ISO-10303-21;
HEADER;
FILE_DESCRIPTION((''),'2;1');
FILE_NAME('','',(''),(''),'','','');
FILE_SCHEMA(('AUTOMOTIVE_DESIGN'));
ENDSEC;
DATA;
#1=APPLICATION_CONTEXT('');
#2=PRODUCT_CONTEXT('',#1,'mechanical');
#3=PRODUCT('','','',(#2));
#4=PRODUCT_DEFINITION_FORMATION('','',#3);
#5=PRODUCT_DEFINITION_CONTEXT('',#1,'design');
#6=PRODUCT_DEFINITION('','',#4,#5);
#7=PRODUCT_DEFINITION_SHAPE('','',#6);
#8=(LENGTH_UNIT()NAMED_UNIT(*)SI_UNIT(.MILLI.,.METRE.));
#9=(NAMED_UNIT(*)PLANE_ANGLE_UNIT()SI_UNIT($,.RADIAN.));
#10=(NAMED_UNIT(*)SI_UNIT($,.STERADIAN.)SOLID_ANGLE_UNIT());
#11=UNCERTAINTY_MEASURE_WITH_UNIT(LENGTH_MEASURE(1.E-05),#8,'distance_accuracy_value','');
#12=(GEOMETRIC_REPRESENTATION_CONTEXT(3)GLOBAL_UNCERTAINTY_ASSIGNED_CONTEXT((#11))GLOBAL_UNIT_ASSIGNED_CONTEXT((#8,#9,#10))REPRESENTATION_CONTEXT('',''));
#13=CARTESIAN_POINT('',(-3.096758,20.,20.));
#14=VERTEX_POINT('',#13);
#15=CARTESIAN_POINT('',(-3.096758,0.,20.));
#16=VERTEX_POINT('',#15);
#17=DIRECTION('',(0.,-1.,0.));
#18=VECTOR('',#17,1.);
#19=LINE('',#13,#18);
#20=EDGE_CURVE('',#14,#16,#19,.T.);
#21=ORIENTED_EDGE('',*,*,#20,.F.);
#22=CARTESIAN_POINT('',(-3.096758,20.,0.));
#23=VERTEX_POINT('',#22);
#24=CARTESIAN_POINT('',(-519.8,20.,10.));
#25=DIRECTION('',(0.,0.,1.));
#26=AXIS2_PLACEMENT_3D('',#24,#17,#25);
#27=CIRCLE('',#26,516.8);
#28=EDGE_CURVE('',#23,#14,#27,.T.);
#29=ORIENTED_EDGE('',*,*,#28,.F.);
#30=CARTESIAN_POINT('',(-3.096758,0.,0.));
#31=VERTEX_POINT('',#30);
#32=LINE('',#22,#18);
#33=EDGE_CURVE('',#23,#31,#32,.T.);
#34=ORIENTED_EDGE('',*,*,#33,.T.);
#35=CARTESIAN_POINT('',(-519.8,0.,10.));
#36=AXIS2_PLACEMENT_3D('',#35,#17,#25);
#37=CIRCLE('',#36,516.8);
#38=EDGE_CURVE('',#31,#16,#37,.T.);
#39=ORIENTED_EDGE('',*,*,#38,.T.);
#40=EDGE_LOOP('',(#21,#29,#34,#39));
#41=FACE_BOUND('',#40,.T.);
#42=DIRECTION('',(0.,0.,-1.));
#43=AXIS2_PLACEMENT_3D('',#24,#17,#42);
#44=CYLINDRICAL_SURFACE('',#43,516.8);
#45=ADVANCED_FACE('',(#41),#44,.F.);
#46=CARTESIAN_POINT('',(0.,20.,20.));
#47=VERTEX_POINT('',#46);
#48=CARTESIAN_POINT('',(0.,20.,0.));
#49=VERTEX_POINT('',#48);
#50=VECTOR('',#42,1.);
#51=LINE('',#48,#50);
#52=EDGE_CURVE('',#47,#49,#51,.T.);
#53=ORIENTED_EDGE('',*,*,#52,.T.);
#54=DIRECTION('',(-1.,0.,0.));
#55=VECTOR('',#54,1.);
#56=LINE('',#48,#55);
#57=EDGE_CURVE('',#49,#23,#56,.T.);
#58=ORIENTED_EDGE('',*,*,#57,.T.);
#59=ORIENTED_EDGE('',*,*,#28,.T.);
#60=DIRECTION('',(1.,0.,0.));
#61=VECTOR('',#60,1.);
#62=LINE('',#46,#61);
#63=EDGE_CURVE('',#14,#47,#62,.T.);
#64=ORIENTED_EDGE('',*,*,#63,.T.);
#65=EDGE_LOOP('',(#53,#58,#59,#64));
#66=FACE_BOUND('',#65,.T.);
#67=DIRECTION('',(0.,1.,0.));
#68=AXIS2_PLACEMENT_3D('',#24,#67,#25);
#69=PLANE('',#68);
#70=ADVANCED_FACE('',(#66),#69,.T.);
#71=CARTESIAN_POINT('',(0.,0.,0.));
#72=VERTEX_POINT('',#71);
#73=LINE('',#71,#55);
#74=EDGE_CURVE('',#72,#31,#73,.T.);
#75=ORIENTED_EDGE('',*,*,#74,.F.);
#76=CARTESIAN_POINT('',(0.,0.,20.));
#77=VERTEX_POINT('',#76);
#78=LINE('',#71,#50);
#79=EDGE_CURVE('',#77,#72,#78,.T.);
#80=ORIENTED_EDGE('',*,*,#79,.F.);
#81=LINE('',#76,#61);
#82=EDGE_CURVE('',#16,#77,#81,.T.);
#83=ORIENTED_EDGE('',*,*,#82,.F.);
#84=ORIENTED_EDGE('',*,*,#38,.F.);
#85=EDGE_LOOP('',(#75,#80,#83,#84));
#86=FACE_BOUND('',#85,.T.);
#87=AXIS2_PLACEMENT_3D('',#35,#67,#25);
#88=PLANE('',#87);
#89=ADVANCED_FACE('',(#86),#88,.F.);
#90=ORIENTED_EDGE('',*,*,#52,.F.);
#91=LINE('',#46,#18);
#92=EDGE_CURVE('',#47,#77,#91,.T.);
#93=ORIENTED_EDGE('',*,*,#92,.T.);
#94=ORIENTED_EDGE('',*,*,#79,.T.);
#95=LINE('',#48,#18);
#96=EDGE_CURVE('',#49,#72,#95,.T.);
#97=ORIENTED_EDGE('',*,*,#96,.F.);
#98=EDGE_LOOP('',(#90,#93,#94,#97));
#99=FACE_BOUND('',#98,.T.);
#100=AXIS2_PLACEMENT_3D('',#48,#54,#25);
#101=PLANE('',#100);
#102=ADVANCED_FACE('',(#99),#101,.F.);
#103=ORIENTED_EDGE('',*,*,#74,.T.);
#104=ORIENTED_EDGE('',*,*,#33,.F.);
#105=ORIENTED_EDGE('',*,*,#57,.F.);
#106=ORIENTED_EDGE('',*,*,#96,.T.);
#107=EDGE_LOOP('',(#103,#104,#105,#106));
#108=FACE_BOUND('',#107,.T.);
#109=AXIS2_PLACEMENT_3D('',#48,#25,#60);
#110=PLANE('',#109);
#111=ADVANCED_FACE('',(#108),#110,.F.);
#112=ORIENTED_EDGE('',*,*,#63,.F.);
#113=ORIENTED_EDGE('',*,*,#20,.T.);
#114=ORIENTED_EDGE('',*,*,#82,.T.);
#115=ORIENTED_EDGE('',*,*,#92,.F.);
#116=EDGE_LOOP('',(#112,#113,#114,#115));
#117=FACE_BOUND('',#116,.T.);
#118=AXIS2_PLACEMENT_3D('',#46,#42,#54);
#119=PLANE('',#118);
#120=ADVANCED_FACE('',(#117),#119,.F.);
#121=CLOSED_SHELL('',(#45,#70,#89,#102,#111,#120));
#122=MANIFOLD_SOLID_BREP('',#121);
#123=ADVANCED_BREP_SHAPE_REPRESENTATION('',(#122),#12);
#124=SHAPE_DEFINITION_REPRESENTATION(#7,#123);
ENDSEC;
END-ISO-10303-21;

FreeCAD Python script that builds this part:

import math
import FreeCAD as App
import Part
import Sketcher
from FreeCAD import Vector

doc = App.newDocument("Part")
params = doc.addObject("Spreadsheet::Sheet", "Params")
for row, (alias, value) in enumerate([
    ("sketch1_radius", "516.799999 mm"),
    ("sketch1_height", "20 mm"),
    ("pad1_length", "20 mm"),
], start=1):
    params.set(f"A{row}", alias)
    params.set(f"B{row}", "=" + value)
    params.setAlias(f"B{row}", alias)

body = doc.addObject("PartDesign::Body", "Body")

sketch1 = body.newObject("Sketcher::SketchObject", "Sketch")
sketch1.AttachmentSupport = (doc.getObject("XZ_Plane"), [""])
sketch1.MapMode = "FlatFace"
sketch1.addGeometry(Part.LineSegment(Vector(0, 20, 0), Vector(0, 0, 0)), False)
sketch1.addGeometry(Part.LineSegment(Vector(0, 0, 0), Vector(-3.1, 0, 0)), False)
sketch1.addGeometry(Part.ArcOfCircle(Part.Circle(Vector(-519.8, 10, 0), Vector(0, 0, 1), 516.8), math.radians(-1.11), math.radians(1.11)), False)
sketch1.addGeometry(Part.LineSegment(Vector(-3.1, 20, 0), Vector(0, 20, 0)), False)
sketch1.addConstraint(Sketcher.Constraint("Coincident", 0, 2, 1, 1))
sketch1.addConstraint(Sketcher.Constraint("Coincident", 1, 2, 2, 1))
sketch1.addConstraint(Sketcher.Constraint("Coincident", 2, 2, 3, 1))
sketch1.addConstraint(Sketcher.Constraint("Coincident", 3, 2, 0, 1))
sketch1.addConstraint(Sketcher.Constraint("Vertical", 0))
sketch1.addConstraint(Sketcher.Constraint("Horizontal", 1))
sketch1.addConstraint(Sketcher.Constraint("Horizontal", 3))
sketch1.addConstraint(Sketcher.Constraint("Coincident", 0, 2, -1, 1))
sketch1.addConstraint(Sketcher.Constraint("Vertical", 1, 2, 2, 2))
sketch1.addConstraint(Sketcher.Constraint("Radius", 2, 516.799999))
sketch1.addConstraint(Sketcher.Constraint("DistanceY", 0, 2, 0, 1, 20.0))
sketch1.addConstraint(Sketcher.Constraint("DistanceX", 2, 3, -1, 1, 519.799999))
sketch1.setExpression("Constraints[9]", "Params.sketch1_radius")
sketch1.setExpression("Constraints[10]", "Params.sketch1_height")
pad1 = body.newObject("PartDesign::Pad", "Pad")
pad1.Profile = sketch1
pad1.setExpression("Length", "Params.pad1_length")
pad1.Reversed = True

doc.recompute()
